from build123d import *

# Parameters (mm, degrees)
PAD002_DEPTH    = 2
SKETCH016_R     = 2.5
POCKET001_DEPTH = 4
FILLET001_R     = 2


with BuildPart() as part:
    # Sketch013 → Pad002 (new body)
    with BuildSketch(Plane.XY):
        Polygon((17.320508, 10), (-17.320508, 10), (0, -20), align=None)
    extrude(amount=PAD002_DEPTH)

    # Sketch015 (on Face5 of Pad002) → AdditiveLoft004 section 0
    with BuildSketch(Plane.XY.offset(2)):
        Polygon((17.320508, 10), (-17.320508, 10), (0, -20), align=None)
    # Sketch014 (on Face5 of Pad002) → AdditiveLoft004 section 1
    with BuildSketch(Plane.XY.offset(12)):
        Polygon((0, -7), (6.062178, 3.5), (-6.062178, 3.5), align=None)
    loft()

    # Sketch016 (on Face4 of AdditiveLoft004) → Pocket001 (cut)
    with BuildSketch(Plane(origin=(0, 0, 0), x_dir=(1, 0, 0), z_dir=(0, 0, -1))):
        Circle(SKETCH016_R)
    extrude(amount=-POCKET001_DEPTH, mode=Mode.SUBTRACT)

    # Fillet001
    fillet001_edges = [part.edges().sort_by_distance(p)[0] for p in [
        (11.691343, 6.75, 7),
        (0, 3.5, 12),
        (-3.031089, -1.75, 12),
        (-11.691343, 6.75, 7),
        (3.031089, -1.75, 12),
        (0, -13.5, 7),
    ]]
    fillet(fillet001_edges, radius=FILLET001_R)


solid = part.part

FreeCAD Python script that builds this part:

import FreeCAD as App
import Part
import Sketcher

V = App.Vector
Q = App.Units.Quantity


def edges_at(feature, points):
    """Names of the edges that pass closest to the given points."""
    edges = feature.Shape.Edges
    near = lambda p: min(range(len(edges)), key=lambda i: edges[i].distToShape(Part.Vertex(*p))[0])
    return sorted({f"Edge{near(p) + 1}" for p in points})

doc = App.newDocument("Part")
body = doc.addObject("PartDesign::Body", "Body")

sketch1 = body.newObject("Sketcher::SketchObject", "Sketch")
sketch1.AttachmentSupport = (doc.getObject("XY_Plane"), [""])
sketch1.MapMode = "FlatFace"
sketch1.addGeometry(Part.LineSegment(V(17, 10, 0), V(-17, 10, 0)), False)
sketch1.addGeometry(Part.LineSegment(V(-17, 10, 0), V(0, -20, 0)), False)
sketch1.addGeometry(Part.LineSegment(V(0, -20, 0), V(17, 10, 0)), False)
sketch1.addConstraint(Sketcher.Constraint("Coincident", 0, 2, 1, 1))
sketch1.addConstraint(Sketcher.Constraint("Coincident", 1, 2, 2, 1))
sketch1.addConstraint(Sketcher.Constraint("Coincident", 2, 2, 0, 1))
sketch1.addConstraint(Sketcher.Constraint("Horizontal", 0))
sketch1.addConstraint(Sketcher.Constraint("PointOnObject", 1, 2, -2))
sketch1.addConstraint(Sketcher.Constraint("Equal", 1, 2))
sketch1.addConstraint(Sketcher.Constraint("Angle", 1, Q("-60 deg")))
sketch1.addConstraint(Sketcher.Constraint("DistanceY", -1, 1, 0, 2, Q("10 mm")))
sketch1.addConstraint(Sketcher.Constraint("DistanceY", 1, 2, -1, 1, Q("20 mm")))
pad1 = body.newObject("PartDesign::Pad", "Pad")
pad1.Profile = sketch1
pad1.Length = 2

sketch2 = body.newObject("Sketcher::SketchObject", "Sketch001")
sketch2.AttachmentSupport = (doc.getObject("XY_Plane"), [""])
sketch2.MapMode = "FlatFace"
sketch2.AttachmentOffset = App.Placement(V(0, 0, 2), App.Rotation())
sketch2.addGeometry(Part.LineSegment(V(17, 10, 0), V(-17, 10, 0)), False)
sketch2.addGeometry(Part.LineSegment(V(-17, 10, 0), V(0, -20, 0)), False)
sketch2.addGeometry(Part.LineSegment(V(0, -20, 0), V(17, 10, 0)), False)
sketch2.addConstraint(Sketcher.Constraint("Coincident", 0, 2, 1, 1))
sketch2.addConstraint(Sketcher.Constraint("Coincident", 1, 2, 2, 1))
sketch2.addConstraint(Sketcher.Constraint("Coincident", 2, 2, 0, 1))
sketch2.addConstraint(Sketcher.Constraint("Horizontal", 0))
sketch2.addConstraint(Sketcher.Constraint("PointOnObject", 1, 2, -2))
sketch2.addConstraint(Sketcher.Constraint("Equal", 1, 2))
sketch2.addConstraint(Sketcher.Constraint("Angle", 1, Q("-60 deg")))
sketch2.addConstraint(Sketcher.Constraint("DistanceY", -1, 1, 0, 2, Q("10 mm")))
sketch2.addConstraint(Sketcher.Constraint("DistanceY", 1, 2, -1, 1, Q("20 mm")))

sketch3 = body.newObject("Sketcher::SketchObject", "Sketch002")
sketch3.AttachmentSupport = (doc.getObject("XY_Plane"), [""])
sketch3.MapMode = "FlatFace"
sketch3.AttachmentOffset = App.Placement(V(0, 0, 12), App.Rotation())
sketch3.addGeometry(Part.LineSegment(V(0, -7, 0), V(6, 4, 0)), False)
sketch3.addGeometry(Part.LineSegment(V(6, 4, 0), V(-6, 4, 0)), False)
sketch3.addGeometry(Part.LineSegment(V(-6, 4, 0), V(0, -7, 0)), False)
sketch3.addConstraint(Sketcher.Constraint("Coincident", 0, 2, 1, 1))
sketch3.addConstraint(Sketcher.Constraint("Coincident", 1, 2, 2, 1))
sketch3.addConstraint(Sketcher.Constraint("Coincident", 2, 2, 0, 1))
sketch3.addConstraint(Sketcher.Constraint("Horizontal", 1))
sketch3.addConstraint(Sketcher.Constraint("PointOnObject", 2, 2, -2))
sketch3.addConstraint(Sketcher.Constraint("Equal", 0, 2))
sketch3.addConstraint(Sketcher.Constraint("Angle", 0, Q("59.999999 deg")))
sketch3.addConstraint(Sketcher.Constraint("DistanceY", 2, 2, -1, 1, Q("7 mm")))
sketch3.addConstraint(Sketcher.Constraint("DistanceY", -1, 1, 0, 2, Q("3.5 mm")))

additiveloft = body.newObject("PartDesign::AdditiveLoft", "AdditiveLoft")
additiveloft.Profile = sketch2
additiveloft.Sections = [sketch3]

sketch4 = body.newObject("Sketcher::SketchObject", "Sketch003")
sketch4.AttachmentSupport = (doc.getObject("XY_Plane"), [""])
sketch4.MapMode = "FlatFace"
sketch4.addGeometry(Part.Circle(V(0, 0, 0), V(0, 0, 1), 2.5), False)
sketch4.addConstraint(Sketcher.Constraint("Coincident", 0, 3, -1, 1))
sketch4.addConstraint(Sketcher.Constraint("Diameter", 0, Q("5 mm")))
pocket1 = body.newObject("PartDesign::Pocket", "Pocket")
pocket1.Profile = sketch4
pocket1.Length = 4
pocket1.Reversed = True
doc.recompute()

fillet = body.newObject("PartDesign::Fillet", "Fillet")
fillet.Base = (pocket1, edges_at(pocket1, [
    (11.691, 6.75, 7),
    (0, 3.5, 12),
    (-3.031, -1.75, 12),
    (-11.691, 6.75, 7),
    (3.031, -1.75, 12),
    (0, -13.5, 7),
]))
fillet.Radius = 2

doc.recompute()
